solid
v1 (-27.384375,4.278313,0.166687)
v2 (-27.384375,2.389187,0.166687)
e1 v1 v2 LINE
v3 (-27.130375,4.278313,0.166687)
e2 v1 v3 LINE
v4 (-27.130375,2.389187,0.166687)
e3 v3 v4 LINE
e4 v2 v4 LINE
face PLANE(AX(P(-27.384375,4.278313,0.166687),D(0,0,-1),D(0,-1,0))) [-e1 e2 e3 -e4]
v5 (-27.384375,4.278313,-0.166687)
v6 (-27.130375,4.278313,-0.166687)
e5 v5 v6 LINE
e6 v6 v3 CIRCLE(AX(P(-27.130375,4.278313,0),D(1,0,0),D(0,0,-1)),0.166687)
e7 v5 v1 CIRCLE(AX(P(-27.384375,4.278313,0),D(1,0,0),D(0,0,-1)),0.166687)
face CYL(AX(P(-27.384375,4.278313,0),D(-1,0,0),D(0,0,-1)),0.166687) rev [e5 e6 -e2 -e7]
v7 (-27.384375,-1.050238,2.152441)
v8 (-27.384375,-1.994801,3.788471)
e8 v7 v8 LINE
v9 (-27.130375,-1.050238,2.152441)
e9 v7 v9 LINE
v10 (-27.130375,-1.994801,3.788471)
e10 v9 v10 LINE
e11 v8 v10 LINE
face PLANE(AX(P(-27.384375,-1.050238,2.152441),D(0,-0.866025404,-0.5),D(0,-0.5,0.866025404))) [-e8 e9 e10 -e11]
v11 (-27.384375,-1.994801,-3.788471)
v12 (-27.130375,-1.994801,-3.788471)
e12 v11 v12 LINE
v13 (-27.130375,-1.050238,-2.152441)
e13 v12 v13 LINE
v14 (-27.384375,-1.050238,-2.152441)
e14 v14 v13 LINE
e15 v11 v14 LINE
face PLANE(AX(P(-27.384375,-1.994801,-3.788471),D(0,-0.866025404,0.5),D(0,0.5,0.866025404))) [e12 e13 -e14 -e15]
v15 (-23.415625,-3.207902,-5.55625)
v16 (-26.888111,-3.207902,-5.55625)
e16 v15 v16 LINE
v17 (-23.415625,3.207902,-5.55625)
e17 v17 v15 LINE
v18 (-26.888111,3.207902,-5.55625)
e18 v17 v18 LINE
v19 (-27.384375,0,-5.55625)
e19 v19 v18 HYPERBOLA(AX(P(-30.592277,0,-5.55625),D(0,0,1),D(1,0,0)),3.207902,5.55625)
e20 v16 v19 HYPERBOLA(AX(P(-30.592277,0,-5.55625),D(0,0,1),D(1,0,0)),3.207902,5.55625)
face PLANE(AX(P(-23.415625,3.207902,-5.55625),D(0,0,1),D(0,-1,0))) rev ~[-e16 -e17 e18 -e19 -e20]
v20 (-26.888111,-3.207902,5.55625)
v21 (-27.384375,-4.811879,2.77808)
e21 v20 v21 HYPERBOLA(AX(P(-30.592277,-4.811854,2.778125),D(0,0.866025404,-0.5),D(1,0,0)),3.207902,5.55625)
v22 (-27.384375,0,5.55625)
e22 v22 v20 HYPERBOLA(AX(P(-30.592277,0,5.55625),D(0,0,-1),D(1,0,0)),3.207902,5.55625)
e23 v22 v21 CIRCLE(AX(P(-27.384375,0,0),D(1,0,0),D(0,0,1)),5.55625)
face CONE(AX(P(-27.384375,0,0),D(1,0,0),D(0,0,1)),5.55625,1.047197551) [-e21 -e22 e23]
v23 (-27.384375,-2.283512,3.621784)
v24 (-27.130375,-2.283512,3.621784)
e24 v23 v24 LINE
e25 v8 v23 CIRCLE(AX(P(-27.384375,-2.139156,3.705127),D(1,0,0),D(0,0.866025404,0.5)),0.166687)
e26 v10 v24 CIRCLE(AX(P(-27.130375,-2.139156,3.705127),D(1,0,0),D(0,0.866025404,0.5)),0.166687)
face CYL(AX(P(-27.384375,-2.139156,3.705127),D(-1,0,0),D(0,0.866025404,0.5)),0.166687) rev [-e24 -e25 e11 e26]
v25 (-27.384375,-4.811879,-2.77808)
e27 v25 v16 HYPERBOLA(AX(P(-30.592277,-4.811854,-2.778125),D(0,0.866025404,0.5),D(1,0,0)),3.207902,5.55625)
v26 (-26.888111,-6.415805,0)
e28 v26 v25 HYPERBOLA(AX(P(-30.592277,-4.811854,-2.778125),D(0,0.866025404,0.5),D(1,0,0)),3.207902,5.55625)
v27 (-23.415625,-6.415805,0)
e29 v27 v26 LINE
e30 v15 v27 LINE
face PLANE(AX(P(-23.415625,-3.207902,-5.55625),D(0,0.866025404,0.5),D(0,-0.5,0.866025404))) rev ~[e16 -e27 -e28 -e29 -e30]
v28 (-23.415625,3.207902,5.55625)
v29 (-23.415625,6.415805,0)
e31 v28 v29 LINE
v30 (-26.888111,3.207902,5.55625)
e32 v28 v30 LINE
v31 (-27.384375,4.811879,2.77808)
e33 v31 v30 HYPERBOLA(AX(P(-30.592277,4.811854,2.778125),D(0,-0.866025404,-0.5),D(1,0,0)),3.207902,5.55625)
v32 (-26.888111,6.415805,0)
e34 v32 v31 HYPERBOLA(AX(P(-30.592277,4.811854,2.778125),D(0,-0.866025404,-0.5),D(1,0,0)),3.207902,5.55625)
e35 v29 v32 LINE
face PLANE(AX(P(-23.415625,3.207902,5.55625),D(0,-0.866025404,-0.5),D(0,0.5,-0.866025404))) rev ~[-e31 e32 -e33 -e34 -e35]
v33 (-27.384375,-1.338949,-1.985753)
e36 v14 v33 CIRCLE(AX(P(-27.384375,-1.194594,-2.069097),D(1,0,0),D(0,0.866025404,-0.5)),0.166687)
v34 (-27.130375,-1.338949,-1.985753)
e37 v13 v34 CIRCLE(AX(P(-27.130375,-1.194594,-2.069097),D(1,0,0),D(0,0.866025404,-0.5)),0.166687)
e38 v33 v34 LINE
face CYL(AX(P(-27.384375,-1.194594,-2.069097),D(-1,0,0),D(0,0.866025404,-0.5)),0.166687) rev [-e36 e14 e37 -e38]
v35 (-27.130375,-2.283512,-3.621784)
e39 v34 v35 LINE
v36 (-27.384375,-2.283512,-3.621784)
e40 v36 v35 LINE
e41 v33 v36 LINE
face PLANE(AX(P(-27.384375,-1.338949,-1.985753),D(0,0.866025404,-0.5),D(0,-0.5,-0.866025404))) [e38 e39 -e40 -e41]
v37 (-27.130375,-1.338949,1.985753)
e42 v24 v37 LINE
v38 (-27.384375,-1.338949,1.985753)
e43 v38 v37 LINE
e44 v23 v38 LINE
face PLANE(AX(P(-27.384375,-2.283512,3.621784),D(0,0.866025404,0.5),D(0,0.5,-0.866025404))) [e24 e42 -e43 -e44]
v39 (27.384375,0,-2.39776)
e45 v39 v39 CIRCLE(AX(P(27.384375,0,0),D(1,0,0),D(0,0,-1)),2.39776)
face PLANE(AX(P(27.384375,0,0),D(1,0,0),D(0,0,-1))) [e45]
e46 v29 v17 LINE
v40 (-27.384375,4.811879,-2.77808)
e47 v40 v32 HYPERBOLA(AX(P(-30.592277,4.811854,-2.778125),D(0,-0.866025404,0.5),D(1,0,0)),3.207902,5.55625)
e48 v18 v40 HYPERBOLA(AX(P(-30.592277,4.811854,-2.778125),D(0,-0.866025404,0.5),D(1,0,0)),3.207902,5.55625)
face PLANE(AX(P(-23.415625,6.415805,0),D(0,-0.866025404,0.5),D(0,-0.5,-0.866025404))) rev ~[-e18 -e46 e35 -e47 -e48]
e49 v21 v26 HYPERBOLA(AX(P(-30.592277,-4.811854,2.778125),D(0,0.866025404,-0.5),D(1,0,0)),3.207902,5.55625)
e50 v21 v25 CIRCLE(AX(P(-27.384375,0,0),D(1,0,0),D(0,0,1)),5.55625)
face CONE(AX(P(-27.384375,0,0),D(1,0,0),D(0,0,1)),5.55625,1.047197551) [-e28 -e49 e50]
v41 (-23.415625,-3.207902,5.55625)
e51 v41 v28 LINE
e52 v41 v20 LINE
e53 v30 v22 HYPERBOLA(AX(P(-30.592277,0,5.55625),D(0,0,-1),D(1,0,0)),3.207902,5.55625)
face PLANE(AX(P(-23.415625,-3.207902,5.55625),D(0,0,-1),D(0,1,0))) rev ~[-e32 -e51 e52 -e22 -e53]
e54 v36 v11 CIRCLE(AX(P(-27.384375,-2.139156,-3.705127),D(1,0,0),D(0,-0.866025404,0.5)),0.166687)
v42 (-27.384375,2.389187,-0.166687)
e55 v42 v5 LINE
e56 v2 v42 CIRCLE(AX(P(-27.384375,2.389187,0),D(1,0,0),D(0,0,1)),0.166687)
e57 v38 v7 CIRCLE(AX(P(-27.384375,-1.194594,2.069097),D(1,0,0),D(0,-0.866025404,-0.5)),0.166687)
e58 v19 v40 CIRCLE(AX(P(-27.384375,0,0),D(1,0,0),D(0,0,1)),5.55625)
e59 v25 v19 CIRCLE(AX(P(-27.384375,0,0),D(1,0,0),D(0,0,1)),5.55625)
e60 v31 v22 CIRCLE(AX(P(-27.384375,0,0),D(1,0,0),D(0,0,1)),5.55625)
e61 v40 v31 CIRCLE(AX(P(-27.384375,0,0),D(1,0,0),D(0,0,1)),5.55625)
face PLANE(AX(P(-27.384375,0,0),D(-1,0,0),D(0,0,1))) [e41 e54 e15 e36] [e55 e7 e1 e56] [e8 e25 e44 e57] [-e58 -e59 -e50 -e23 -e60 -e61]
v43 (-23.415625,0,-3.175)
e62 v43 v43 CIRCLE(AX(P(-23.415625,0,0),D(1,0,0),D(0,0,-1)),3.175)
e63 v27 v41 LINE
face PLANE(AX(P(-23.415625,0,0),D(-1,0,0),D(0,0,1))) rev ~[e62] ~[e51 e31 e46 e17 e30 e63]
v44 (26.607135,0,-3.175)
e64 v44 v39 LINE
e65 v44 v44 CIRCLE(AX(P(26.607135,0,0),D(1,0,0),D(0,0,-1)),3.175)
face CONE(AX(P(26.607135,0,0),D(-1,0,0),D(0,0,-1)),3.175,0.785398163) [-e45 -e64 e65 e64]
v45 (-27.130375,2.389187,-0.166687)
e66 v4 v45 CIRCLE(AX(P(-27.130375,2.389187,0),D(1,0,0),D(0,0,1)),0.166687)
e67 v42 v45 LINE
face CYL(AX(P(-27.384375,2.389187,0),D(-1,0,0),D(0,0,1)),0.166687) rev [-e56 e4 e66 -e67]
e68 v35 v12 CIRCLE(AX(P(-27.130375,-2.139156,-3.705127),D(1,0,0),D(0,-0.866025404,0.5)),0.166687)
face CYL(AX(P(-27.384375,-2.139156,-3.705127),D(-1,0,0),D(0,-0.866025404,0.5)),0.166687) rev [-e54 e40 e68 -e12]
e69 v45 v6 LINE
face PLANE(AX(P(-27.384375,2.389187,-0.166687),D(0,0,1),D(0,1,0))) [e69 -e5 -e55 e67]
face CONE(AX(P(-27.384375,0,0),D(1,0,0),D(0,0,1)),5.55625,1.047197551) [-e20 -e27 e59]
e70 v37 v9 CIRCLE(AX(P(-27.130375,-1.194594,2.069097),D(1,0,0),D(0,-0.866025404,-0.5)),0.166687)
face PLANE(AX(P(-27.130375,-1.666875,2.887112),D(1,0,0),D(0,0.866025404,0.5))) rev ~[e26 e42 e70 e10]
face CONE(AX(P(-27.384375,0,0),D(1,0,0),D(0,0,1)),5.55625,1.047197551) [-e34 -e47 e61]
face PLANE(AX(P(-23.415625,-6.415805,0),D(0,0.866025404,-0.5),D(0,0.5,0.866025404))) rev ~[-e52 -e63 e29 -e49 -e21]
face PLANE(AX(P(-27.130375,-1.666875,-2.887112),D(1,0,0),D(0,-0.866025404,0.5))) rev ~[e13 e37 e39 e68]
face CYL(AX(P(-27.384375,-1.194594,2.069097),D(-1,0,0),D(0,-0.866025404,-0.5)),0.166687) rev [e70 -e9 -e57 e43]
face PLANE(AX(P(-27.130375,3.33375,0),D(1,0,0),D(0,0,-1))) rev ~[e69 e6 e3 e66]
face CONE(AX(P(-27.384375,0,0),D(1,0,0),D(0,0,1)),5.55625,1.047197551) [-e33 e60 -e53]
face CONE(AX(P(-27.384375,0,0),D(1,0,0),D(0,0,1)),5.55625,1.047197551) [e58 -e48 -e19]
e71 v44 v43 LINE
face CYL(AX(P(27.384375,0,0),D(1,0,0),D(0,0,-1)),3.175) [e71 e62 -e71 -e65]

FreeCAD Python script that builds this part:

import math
import FreeCAD as App
import Part
import Sketcher
from FreeCAD import Vector
Q = App.Units.Quantity


def edges_at(feature, points):
    """Names of the edges that pass closest to the given points."""
    edges = feature.Shape.Edges
    near = lambda p: min(range(len(edges)), key=lambda i: edges[i].distToShape(Part.Vertex(*p))[0])
    return sorted({f"Edge{near(p) + 1}" for p in points})

doc = App.newDocument("Part")
params = doc.addObject("Spreadsheet::Sheet", "Params")
for row, (alias, value) in enumerate([
    ("sketch1_diameter", "0.25 in"),
    ("pad1_length", "2 in"),
    ("chamfer_size", "0.0306 in"),
    ("pad2_length", "0.15625 in"),
    ("sketch3_diameter", "0.4375 in"),
    ("pocket1_length", "55.76875 mm"),
    ("pocket1_taper", "60 deg"),
    ("pocket2_length", "0.01 in"),
], start=1):
    params.set(f"A{row}", alias)
    params.set(f"B{row}", "=" + value)
    params.setAlias(f"B{row}", alias)

body = doc.addObject("PartDesign::Body", "Body")

# Sketch on YZ plane
sketch1 = body.newObject("Sketcher::SketchObject", "Sketch")
sketch1.AttachmentSupport = (doc.getObject("YZ_Plane"), [""])
sketch1.MapMode = "FlatFace"
sketch1.AttachmentOffset = App.Placement(Vector(0, 0, 1.078125 * 25.4), App.Rotation())
sketch1.addGeometry(Part.Circle(Vector(0, 0, 0), Vector(0, 0, 1), 3.2), False)
sketch1.addConstraint(Sketcher.Constraint("Coincident", 0, 3, -1, 1))
sketch1.addConstraint(Sketcher.Constraint("Diameter", 0, Q("0.25 in")))
sketch1.setExpression("Constraints[1]", "Params.sketch1_diameter")
pad1 = body.newObject("PartDesign::Pad", "Pad")
pad1.Profile = sketch1
pad1.setExpression("Length", "Params.pad1_length")
pad1.Reversed = True
doc.recompute()

chamfer = body.newObject("PartDesign::Chamfer", "Chamfer")
chamfer.Base = (pad1, edges_at(pad1, [(27.384, 0, 3.175)]))
chamfer.setExpression("Size", "Params.chamfer_size")

# Sketch on YZ plane
sketch2 = body.newObject("Sketcher::SketchObject", "Sketch001")
sketch2.AttachmentSupport = (doc.getObject("YZ_Plane"), [""])
sketch2.MapMode = "FlatFace"
sketch2.AttachmentOffset = App.Placement(Vector(0, 0, -0.921875 * 25.4), App.Rotation())
sketch2.addGeometry(Part.LineSegment(Vector(3, 6, 0), Vector(6, 0, 0)), False)
sketch2.addGeometry(Part.LineSegment(Vector(6, 0, 0), Vector(3, -6, 0)), False)
sketch2.addGeometry(Part.LineSegment(Vector(3, -6, 0), Vector(-3, -6, 0)), False)
sketch2.addGeometry(Part.LineSegment(Vector(-3, -6, 0), Vector(-6, 0, 0)), False)
sketch2.addGeometry(Part.LineSegment(Vector(-6, 0, 0), Vector(-3, 6, 0)), False)
sketch2.addGeometry(Part.LineSegment(Vector(-3, 6, 0), Vector(3, 6, 0)), False)
sketch2.addConstraint(Sketcher.Constraint("Coincident", 0, 2, 1, 1))
sketch2.addConstraint(Sketcher.Constraint("Coincident", 1, 2, 2, 1))
sketch2.addConstraint(Sketcher.Constraint("Coincident", 2, 2, 3, 1))
sketch2.addConstraint(Sketcher.Constraint("Coincident", 3, 2, 4, 1))
sketch2.addConstraint(Sketcher.Constraint("Coincident", 4, 2, 5, 1))
sketch2.addConstraint(Sketcher.Constraint("Coincident", 5, 2, 0, 1))
sketch2.addConstraint(Sketcher.Constraint("Horizontal", 2))
sketch2.addConstraint(Sketcher.Constraint("Horizontal", 5))
sketch2.addConstraint(Sketcher.Constraint("Symmetric", 0, 2, 3, 2, -1, 1))
sketch2.addConstraint(Sketcher.Constraint("Symmetric", 1, 2, 4, 2, -1, 1))
sketch2.addConstraint(Sketcher.Constraint("PointOnObject", 0, 2, -1))
sketch2.addConstraint(Sketcher.Constraint("Parallel", 0, 3))
sketch2.addConstraint(Sketcher.Constraint("Vertical", 2, 2, 4, 2))
sketch2.addConstraint(Sketcher.Constraint("Angle", 0, Q("-60 deg")))
sketch2.addConstraint(Sketcher.Constraint("DistanceY", 1, 2, -1, 1, Q("0.21875 in")))
sketch2.addConstraint(Sketcher.Constraint("DistanceX", 2, 2, 2, 1, Q("6.415805 mm")))
pad2 = body.newObject("PartDesign::Pad", "Pad001")
pad2.Profile = sketch2
pad2.setExpression("Length", "Params.pad2_length")
pad2.Reversed = True

# Sketch on YZ plane
sketch3 = body.newObject("Sketcher::SketchObject", "Sketch002")
sketch3.AttachmentSupport = (doc.getObject("YZ_Plane"), [""])
sketch3.MapMode = "FlatFace"
sketch3.AttachmentOffset = App.Placement(Vector(0, 0, -1.078125 * 25.4), App.Rotation())
sketch3.addGeometry(Part.LineSegment(Vector(110, -109, 0), Vector(-110, -109, 0)), False)
sketch3.addGeometry(Part.LineSegment(Vector(-110, -109, 0), Vector(-110, 109, 0)), False)
sketch3.addGeometry(Part.LineSegment(Vector(-110, 109, 0), Vector(110, 109, 0)), False)
sketch3.addGeometry(Part.LineSegment(Vector(110, 109, 0), Vector(110, -109, 0)), False)
sketch3.addGeometry(Part.Circle(Vector(0, 0, 0), Vector(0, 0, 1), 6), False)
sketch3.addConstraint(Sketcher.Constraint("Coincident", 0, 2, 1, 1))
sketch3.addConstraint(Sketcher.Constraint("Coincident", 1, 2, 2, 1))
sketch3.addConstraint(Sketcher.Constraint("Coincident", 2, 2, 3, 1))
sketch3.addConstraint(Sketcher.Constraint("Coincident", 3, 2, 0, 1))
sketch3.addConstraint(Sketcher.Constraint("Horizontal", 0))
sketch3.addConstraint(Sketcher.Constraint("Vertical", 1))
sketch3.addConstraint(Sketcher.Constraint("Horizontal", 2))
sketch3.addConstraint(Sketcher.Constraint("Vertical", 3))
sketch3.addConstraint(Sketcher.Constraint("Coincident", 4, 3, -1, 1))
sketch3.addConstraint(Sketcher.Constraint("Symmetric", 0, 2, 2, 2, -1, 1))
sketch3.addConstraint(Sketcher.Constraint("Diameter", 4, Q("0.4375 in")))
sketch3.addConstraint(Sketcher.Constraint("DistanceX", 0, 2, 0, 1, Q("219.488 mm")))
sketch3.addConstraint(Sketcher.Constraint("DistanceY", 1, 1, 1, 2, Q("217.768 mm")))
sketch3.setExpression("Constraints[10]", "Params.sketch3_diameter")
pocket1 = body.newObject("PartDesign::Pocket", "Pocket")
pocket1.Profile = sketch3
pocket1.setExpression("Length", "Params.pocket1_length")
pocket1.Reversed = True
pocket1.setExpression("TaperAngle", "Params.pocket1_taper")

# Sketch on YZ plane
sketch4 = body.newObject("Sketcher::SketchObject", "Sketch003")
sketch4.AttachmentSupport = (doc.getObject("YZ_Plane"), [""])
sketch4.MapMode = "FlatFace"
sketch4.AttachmentOffset = App.Placement(Vector(0, 0, -1.078125 * 25.4), App.Rotation())
sketch4.addGeometry(Part.LineSegment(Vector(2.39, 0.17, 0), Vector(4.28, 0.17, 0)), False)
sketch4.addGeometry(Part.ArcOfCircle(Part.Circle(Vector(4.28, 0, 0), Vector(0, 0, 1), 0.17), math.radians(-90), math.radians(90)), False)
sketch4.addGeometry(Part.LineSegment(Vector(4.28, -0.17, 0), Vector(2.39, -0.17, 0)), False)
sketch4.addGeometry(Part.ArcOfCircle(Part.Circle(Vector(2.39, 0, 0), Vector(0, 0, 1), 0.17), math.radians(90), math.radians(270)), False)
sketch4.addConstraint(Sketcher.Constraint("Tangent", 0, 2, 1, 2))
sketch4.addConstraint(Sketcher.Constraint("Tangent", 1, 1, 2, 1))
sketch4.addConstraint(Sketcher.Constraint("Tangent", 2, 2, 3, 2))
sketch4.addConstraint(Sketcher.Constraint("Tangent", 3, 1, 0, 1))
sketch4.addConstraint(Sketcher.Constraint("Horizontal", 0))
sketch4.addConstraint(Sketcher.Constraint("Horizontal", 2))
sketch4.addConstraint(Sketcher.Constraint("PointOnObject", 1, 3, -1))
sketch4.addConstraint(Sketcher.Constraint("Radius", 1, Q("0.166687 mm")))
sketch4.addConstraint(Sketcher.Constraint("DistanceX", 0, 1, 0, 2, Q("1.889125 mm")))
sketch4.addConstraint(Sketcher.Constraint("DistanceX", -1, 1, 1, 3, Q("4.278313 mm")))
pocket2 = body.newObject("PartDesign::Pocket", "Pocket001")
pocket2.Profile = sketch4
pocket2.setExpression("Length", "Params.pocket2_length")
pocket2.Reversed = True
doc.recompute()

polarpattern = body.newObject("PartDesign::PolarPattern", "PolarPattern")
polarpattern.Originals = [pocket2]
polarpattern.Axis = (doc.getObject("X_Axis"), [""])
polarpattern.Angle = 360
polarpattern.Occurrences = 3
body.Tip = polarpattern

doc.recompute()
